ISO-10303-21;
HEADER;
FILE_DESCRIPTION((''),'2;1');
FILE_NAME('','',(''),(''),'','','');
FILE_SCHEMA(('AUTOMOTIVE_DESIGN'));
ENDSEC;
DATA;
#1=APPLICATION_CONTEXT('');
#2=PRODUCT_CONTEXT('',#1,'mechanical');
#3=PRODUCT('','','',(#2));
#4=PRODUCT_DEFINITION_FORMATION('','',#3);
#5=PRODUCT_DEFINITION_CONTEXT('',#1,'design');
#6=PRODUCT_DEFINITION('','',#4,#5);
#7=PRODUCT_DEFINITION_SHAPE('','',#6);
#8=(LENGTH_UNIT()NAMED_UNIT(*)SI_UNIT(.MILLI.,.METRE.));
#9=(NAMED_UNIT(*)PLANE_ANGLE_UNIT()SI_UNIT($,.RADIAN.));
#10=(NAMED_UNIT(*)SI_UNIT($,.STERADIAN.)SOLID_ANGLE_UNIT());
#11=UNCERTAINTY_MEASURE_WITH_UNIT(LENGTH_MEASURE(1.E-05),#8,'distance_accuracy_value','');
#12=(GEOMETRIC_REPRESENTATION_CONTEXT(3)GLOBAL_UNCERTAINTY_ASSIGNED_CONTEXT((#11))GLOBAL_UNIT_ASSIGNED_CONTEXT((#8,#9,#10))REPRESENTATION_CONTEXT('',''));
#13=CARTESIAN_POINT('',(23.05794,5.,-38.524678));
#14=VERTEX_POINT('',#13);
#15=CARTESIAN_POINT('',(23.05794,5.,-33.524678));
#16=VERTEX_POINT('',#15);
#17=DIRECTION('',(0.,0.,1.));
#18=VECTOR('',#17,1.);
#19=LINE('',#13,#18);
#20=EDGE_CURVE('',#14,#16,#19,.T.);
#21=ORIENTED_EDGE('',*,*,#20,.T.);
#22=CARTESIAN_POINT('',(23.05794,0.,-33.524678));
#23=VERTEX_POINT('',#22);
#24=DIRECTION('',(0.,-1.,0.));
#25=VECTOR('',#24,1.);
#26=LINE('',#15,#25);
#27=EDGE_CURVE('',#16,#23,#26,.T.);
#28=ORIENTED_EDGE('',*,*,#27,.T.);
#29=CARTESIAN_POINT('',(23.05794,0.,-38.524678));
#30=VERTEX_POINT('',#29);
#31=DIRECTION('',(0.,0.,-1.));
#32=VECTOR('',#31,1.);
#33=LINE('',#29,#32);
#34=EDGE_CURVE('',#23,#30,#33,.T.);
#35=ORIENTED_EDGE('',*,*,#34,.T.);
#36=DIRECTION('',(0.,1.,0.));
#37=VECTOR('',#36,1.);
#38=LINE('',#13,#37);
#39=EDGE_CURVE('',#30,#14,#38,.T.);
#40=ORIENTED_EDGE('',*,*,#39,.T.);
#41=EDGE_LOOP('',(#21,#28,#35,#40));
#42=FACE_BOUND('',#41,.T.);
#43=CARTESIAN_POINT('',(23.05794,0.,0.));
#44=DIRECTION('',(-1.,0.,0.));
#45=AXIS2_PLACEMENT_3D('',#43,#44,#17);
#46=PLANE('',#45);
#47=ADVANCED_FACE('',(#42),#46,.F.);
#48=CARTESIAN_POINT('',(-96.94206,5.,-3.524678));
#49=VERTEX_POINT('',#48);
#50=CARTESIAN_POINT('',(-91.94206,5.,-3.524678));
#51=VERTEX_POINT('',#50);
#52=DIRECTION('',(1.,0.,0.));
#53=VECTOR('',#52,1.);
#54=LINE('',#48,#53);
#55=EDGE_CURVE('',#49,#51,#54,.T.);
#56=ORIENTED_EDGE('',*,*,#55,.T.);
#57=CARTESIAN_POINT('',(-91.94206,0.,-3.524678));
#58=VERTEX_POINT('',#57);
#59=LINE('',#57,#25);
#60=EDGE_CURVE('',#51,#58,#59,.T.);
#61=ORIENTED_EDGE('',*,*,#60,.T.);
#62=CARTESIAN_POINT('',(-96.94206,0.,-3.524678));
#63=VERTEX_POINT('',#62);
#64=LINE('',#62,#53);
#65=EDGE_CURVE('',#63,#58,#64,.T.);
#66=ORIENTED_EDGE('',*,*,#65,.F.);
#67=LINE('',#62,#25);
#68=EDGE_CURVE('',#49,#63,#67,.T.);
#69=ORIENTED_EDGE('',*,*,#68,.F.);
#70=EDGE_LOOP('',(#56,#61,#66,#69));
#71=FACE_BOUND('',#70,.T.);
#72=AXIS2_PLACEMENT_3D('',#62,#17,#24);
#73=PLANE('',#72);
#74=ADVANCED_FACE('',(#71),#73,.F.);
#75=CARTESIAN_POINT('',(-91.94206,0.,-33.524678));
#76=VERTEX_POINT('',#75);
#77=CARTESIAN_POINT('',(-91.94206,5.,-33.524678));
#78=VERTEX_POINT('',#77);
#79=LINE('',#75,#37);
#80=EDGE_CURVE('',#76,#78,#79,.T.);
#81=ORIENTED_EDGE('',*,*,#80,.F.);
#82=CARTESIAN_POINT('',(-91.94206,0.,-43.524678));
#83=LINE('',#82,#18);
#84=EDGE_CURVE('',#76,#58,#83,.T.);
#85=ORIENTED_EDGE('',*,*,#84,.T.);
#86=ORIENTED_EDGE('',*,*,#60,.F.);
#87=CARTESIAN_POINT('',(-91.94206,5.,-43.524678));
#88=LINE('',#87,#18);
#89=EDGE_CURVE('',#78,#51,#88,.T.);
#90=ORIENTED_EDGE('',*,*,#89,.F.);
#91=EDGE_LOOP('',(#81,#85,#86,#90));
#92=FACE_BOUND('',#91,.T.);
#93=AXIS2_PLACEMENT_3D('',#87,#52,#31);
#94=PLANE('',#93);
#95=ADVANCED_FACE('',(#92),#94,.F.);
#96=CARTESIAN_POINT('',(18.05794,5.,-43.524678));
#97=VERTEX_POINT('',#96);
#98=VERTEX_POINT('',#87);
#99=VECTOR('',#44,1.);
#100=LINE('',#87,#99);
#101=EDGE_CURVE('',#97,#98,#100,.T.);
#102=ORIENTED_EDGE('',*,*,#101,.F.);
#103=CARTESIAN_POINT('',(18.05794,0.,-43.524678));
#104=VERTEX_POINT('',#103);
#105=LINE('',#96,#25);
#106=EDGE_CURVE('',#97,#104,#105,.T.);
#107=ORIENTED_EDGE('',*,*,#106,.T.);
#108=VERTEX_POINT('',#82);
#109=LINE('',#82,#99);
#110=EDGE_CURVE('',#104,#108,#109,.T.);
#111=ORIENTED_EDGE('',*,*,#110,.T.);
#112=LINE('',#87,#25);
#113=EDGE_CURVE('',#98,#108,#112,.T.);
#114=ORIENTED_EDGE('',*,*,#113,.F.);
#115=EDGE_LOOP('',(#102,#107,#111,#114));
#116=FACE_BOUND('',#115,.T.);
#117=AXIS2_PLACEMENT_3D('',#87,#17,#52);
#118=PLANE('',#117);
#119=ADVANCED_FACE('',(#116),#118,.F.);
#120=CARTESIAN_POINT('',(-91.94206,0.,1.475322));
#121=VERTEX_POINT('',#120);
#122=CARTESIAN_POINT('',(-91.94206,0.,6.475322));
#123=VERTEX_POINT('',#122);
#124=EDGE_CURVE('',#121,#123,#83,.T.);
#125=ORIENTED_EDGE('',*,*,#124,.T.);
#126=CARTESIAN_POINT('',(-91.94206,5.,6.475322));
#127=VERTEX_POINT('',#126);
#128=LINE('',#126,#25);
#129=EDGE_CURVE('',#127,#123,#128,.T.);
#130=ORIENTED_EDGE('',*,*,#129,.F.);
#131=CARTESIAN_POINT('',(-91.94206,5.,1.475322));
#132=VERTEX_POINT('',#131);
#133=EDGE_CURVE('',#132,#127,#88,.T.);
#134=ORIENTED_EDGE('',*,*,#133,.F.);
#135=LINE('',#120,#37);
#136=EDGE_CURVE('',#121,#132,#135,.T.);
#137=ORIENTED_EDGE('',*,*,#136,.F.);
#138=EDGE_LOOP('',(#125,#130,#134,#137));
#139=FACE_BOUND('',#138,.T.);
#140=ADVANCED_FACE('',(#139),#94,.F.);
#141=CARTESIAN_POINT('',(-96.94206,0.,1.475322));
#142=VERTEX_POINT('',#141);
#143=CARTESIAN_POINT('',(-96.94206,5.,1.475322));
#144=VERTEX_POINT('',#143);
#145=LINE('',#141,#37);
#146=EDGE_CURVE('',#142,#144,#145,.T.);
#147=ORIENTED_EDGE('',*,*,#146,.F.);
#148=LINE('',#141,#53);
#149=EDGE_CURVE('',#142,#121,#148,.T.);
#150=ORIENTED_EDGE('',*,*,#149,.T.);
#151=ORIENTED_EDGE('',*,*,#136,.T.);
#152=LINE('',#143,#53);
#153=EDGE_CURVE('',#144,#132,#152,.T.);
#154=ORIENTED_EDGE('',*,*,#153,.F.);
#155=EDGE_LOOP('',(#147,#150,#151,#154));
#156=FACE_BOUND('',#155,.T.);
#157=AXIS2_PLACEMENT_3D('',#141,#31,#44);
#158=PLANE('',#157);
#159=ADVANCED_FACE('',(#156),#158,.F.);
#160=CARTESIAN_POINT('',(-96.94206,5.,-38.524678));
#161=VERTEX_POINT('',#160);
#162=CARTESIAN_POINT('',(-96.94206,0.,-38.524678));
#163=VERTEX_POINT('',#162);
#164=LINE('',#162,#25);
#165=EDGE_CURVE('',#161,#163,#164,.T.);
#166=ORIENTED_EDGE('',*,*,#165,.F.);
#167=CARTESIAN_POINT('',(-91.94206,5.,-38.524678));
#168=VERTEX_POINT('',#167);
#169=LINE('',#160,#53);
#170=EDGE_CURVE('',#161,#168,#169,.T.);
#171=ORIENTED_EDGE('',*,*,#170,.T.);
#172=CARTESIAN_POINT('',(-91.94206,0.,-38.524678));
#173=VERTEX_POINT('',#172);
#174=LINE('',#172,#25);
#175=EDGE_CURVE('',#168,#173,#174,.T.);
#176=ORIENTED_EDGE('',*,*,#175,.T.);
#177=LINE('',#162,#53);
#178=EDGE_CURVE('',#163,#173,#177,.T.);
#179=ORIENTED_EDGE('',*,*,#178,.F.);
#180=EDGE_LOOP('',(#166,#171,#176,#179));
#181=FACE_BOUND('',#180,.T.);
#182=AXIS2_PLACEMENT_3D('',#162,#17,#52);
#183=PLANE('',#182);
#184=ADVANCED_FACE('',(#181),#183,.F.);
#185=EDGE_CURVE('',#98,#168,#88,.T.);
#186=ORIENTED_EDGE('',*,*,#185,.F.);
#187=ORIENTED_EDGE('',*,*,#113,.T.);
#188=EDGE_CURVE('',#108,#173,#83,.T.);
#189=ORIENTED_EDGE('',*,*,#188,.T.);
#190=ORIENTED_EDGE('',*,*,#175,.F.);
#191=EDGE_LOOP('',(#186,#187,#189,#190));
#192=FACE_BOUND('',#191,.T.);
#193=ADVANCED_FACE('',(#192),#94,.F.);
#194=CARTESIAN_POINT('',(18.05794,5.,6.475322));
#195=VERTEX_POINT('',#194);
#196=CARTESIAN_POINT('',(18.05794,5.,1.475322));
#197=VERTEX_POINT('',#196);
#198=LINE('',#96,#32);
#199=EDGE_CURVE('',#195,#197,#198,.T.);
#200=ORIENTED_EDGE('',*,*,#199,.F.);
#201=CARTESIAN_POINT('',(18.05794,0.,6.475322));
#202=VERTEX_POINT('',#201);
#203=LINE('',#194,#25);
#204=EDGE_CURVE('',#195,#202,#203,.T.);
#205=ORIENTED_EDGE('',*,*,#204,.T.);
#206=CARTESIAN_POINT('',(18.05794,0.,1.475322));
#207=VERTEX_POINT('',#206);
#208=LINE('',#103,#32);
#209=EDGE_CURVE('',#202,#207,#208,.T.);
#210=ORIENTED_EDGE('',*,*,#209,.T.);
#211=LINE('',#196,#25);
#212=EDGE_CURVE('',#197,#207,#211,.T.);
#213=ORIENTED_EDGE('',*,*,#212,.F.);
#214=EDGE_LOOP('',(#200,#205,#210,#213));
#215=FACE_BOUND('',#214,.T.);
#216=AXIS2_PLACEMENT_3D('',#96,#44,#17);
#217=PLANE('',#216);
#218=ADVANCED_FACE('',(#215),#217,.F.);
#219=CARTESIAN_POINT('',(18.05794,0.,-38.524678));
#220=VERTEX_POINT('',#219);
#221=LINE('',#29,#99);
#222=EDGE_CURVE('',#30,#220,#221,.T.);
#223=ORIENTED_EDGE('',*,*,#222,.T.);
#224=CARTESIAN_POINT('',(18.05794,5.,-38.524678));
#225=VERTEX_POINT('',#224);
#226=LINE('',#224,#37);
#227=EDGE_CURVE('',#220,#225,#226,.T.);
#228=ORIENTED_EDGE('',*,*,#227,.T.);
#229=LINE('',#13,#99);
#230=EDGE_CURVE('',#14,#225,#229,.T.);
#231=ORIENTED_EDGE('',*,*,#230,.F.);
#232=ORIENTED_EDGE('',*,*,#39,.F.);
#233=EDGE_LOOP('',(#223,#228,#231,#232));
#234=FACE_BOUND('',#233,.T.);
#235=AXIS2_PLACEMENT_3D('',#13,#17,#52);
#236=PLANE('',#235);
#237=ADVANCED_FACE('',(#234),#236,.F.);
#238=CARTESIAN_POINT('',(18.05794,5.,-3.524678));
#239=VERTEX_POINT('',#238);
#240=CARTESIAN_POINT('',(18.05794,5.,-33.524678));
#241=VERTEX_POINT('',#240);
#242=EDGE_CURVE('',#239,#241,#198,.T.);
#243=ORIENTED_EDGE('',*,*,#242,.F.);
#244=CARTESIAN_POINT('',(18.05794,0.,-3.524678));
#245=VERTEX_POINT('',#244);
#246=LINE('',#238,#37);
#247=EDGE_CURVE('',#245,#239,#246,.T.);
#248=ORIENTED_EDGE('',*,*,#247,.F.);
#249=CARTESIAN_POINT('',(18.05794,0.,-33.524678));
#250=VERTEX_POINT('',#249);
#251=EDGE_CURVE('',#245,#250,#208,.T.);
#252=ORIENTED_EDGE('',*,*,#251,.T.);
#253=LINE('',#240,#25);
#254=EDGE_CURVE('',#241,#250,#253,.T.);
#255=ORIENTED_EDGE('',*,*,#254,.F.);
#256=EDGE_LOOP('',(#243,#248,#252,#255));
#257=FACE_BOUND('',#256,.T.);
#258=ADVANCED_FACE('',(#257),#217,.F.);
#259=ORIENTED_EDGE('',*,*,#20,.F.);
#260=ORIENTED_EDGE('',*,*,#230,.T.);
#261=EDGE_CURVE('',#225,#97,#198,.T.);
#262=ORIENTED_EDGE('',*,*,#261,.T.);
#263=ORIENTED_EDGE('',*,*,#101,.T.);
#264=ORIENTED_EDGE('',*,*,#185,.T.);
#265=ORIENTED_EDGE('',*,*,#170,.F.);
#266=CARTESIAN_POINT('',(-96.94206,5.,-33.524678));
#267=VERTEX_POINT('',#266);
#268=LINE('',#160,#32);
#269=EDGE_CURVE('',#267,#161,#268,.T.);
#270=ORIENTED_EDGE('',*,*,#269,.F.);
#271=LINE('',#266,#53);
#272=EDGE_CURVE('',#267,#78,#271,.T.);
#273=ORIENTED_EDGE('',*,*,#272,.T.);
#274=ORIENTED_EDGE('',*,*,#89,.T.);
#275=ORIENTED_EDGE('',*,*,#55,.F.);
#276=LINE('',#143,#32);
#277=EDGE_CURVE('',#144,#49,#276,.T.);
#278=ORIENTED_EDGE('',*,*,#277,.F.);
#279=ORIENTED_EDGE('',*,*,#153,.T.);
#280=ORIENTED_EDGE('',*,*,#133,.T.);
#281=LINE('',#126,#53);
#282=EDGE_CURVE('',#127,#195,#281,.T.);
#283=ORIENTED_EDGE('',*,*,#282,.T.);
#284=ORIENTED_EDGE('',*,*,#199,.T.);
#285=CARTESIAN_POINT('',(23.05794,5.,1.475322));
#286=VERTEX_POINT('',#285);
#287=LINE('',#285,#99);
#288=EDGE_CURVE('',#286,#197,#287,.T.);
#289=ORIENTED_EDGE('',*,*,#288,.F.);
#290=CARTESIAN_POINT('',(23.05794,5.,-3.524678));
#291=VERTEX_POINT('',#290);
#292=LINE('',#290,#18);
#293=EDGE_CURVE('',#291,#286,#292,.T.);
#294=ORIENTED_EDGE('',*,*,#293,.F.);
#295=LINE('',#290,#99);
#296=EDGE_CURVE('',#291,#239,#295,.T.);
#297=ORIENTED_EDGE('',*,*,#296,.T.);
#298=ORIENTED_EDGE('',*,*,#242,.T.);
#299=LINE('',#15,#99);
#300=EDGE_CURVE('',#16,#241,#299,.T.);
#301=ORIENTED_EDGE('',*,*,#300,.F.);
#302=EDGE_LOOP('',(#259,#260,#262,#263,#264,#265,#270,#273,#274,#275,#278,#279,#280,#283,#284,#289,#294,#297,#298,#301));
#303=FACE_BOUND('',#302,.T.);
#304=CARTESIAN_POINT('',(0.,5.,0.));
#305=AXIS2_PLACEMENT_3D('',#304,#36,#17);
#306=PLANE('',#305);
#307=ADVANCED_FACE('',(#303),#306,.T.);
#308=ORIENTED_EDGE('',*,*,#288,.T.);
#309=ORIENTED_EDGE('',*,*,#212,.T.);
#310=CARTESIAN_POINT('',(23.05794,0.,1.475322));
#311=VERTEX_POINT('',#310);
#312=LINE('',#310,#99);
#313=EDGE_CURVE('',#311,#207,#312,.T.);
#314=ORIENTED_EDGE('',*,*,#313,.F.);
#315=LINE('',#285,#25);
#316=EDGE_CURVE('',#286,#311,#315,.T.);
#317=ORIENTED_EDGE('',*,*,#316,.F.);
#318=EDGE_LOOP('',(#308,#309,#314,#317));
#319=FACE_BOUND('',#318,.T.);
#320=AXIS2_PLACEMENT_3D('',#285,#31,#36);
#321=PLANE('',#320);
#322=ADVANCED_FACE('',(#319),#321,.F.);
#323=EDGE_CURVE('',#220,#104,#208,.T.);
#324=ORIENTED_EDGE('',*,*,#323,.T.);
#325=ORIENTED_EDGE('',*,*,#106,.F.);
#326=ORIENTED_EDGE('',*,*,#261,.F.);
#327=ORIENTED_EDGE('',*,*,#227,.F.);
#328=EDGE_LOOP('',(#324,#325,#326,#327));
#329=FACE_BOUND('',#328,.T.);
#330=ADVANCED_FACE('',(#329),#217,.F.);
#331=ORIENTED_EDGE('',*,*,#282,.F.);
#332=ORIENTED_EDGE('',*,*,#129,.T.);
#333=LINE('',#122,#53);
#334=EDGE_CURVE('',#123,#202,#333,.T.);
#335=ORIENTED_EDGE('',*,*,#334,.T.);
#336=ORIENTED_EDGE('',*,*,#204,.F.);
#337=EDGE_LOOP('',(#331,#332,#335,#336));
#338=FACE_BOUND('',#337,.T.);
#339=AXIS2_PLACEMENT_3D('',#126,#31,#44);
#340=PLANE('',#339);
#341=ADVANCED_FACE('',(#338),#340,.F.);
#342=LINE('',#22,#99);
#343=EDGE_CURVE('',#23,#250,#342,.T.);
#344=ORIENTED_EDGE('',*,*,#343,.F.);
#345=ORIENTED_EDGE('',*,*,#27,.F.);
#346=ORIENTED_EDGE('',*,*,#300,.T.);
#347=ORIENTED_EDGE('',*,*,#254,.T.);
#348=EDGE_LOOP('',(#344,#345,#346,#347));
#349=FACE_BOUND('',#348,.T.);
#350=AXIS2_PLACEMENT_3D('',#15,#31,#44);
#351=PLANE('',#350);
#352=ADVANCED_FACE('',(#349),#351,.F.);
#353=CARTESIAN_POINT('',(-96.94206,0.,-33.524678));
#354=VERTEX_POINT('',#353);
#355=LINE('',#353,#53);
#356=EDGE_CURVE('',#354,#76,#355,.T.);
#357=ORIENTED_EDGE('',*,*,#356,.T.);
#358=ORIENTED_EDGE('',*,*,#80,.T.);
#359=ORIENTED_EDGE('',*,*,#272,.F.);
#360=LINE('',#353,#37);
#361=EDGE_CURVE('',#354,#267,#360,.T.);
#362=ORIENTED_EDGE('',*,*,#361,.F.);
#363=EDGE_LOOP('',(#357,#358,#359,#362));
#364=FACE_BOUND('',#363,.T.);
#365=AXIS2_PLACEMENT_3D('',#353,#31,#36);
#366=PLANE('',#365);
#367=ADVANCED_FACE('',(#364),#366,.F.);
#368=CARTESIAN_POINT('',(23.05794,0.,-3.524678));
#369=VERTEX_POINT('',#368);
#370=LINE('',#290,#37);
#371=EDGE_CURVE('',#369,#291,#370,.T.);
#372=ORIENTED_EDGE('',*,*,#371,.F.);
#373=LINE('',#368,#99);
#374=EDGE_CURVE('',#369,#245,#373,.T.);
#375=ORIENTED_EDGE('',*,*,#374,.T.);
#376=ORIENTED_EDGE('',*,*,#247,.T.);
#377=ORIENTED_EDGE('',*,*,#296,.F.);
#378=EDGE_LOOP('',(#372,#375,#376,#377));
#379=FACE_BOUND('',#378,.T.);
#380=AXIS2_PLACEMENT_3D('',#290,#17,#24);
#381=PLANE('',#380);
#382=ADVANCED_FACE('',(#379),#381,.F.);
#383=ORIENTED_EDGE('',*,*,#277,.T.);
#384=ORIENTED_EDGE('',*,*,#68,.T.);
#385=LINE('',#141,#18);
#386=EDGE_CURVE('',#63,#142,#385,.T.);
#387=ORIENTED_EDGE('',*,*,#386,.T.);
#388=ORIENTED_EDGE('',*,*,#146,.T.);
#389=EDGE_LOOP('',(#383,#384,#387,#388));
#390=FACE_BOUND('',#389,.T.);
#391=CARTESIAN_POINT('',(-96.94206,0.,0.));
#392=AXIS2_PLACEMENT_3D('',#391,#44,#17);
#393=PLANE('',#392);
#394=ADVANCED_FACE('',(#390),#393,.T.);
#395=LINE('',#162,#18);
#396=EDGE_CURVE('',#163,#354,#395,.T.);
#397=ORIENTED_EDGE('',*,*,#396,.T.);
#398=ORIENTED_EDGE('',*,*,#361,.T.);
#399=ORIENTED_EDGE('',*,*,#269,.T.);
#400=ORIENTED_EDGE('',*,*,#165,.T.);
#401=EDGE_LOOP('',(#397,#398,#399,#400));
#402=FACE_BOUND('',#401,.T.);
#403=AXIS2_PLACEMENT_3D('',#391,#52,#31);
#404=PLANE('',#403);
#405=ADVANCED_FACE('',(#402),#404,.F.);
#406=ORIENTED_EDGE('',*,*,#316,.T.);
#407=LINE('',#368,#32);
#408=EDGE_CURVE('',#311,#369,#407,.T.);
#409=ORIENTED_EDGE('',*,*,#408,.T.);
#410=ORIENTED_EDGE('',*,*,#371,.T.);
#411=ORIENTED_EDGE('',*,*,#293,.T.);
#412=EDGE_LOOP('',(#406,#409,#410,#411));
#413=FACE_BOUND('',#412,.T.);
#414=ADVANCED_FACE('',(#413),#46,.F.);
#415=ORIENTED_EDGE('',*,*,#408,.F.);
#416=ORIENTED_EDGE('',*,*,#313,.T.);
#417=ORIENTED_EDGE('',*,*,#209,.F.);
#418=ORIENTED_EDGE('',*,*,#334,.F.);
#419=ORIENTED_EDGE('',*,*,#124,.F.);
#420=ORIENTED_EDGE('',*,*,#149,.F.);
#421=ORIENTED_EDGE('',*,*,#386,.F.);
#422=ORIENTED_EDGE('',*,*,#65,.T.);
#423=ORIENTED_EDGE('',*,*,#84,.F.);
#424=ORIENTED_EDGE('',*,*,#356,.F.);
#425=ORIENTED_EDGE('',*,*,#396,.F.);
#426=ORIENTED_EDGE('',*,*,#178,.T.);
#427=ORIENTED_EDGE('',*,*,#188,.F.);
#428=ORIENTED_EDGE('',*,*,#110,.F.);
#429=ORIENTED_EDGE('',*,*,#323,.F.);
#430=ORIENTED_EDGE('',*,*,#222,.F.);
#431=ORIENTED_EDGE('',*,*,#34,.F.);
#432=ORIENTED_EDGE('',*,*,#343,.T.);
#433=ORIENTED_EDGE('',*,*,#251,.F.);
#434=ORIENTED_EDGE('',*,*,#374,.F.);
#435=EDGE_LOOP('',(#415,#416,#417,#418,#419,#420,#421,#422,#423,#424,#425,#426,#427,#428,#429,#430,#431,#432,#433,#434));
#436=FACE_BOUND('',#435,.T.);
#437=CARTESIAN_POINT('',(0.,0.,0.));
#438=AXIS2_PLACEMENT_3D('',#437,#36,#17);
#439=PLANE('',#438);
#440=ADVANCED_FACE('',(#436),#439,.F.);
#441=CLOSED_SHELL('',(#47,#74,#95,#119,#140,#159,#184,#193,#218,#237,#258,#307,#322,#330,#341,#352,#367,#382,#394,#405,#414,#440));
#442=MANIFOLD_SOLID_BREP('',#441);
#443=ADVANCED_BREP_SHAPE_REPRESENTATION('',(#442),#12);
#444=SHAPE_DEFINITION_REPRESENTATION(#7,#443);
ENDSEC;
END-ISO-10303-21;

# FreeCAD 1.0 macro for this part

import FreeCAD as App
import Part
import Sketcher
Q = App.Units.Quantity


def add_polygon(sketch, points):
    """Adds a closed chain of lines whose ends are joined by coincident constraints."""
    first, n = sketch.GeometryCount, len(points)
    for a, b in zip(points, points[1:] + points[:1]):
        sketch.addGeometry(Part.LineSegment(App.Vector(*a, 0), App.Vector(*b, 0)), False)
    for i in range(n):
        sketch.addConstraint(Sketcher.Constraint("Coincident", first + i, 2, first + (i + 1) % n, 1))

doc = App.newDocument("Part")
body = doc.addObject("PartDesign::Body", "Body")

# Sketch on XZ plane
sketch1 = doc.addObject("Sketcher::SketchObject", "Sketch")
body.addObject(sketch1)
sketch1.AttachmentSupport = (doc.XZ_Plane, [""])
sketch1.MapMode = "FlatFace"
add_polygon(sketch1, [(-92, -44), (-92, 6), (18, 6), (18, -44)])  # lines 0-3
sketch1.addConstraint(Sketcher.Constraint("Vertical", 0))
sketch1.addConstraint(Sketcher.Constraint("Horizontal", 1))
sketch1.addConstraint(Sketcher.Constraint("Vertical", 2))
sketch1.addConstraint(Sketcher.Constraint("Horizontal", 3))
sketch1.addConstraint(Sketcher.Constraint("DistanceX", 1, 1, 1, 2, Q("110 mm")))
sketch1.addConstraint(Sketcher.Constraint("DistanceY", 0, 1, 0, 2, Q("50 mm")))
sketch1.addConstraint(Sketcher.Constraint("DistanceX", 0, 2, -1, 1, Q("91.94206 mm")))
sketch1.addConstraint(Sketcher.Constraint("DistanceY", -1, 1, 0, 2, Q("6.475322 mm")))
pad1 = doc.addObject("PartDesign::Pad", "Pad")
body.addObject(pad1)
pad1.Profile = sketch1
pad1.Length = 5
pad1.Reversed = True

# Sketch on YZ plane
sketch2 = doc.addObject("Sketcher::SketchObject", "Sketch001")
body.addObject(sketch2)
sketch2.AttachmentSupport = (doc.YZ_Plane, [""])
sketch2.MapMode = "FlatFace"
sketch2.AttachmentOffset = App.Placement(App.Vector(0, 0, -91.94206), App.Rotation())
add_polygon(sketch2, [(5, -39), (0, -39), (0, -34), (5, -34)])  # lines 0-3
add_polygon(sketch2, [(5, -4), (0, -4), (0, 1), (5, 1)])  # lines 4-7
sketch2.addConstraint(Sketcher.Constraint("Horizontal", 0))
sketch2.addConstraint(Sketcher.Constraint("Vertical", 1))
sketch2.addConstraint(Sketcher.Constraint("Horizontal", 2))
sketch2.addConstraint(Sketcher.Constraint("Vertical", 3))
sketch2.addConstraint(Sketcher.Constraint("Horizontal", 4))
sketch2.addConstraint(Sketcher.Constraint("Vertical", 5))
sketch2.addConstraint(Sketcher.Constraint("Horizontal", 6))
sketch2.addConstraint(Sketcher.Constraint("Vertical", 7))
sketch2.addConstraint(Sketcher.Constraint("PointOnObject", 0, 2, -2))
sketch2.addConstraint(Sketcher.Constraint("PointOnObject", 4, 2, -2))
sketch2.addConstraint(Sketcher.Constraint("Vertical", 3, 2, 6, 2))
sketch2.addConstraint(Sketcher.Constraint("Equal", 6, 1))
sketch2.addConstraint(Sketcher.Constraint("Equal", 3, 5))
sketch2.addConstraint(Sketcher.Constraint("DistanceX", 0, 2, 0, 1, Q("5 mm")))
sketch2.addConstraint(Sketcher.Constraint("DistanceY", 1, 2, 4, 2, Q("30 mm")))
sketch2.addConstraint(Sketcher.Constraint("DistanceY", 0, 2, -1, 1, Q("38.524678 mm")))
pad2 = doc.addObject("PartDesign::Pad", "Pad001")
body.addObject(pad2)
pad2.Profile = sketch2
pad2.Length = 5
pad2.Reversed = True

# Sketch on YZ plane
sketch3 = doc.addObject("Sketcher::SketchObject", "Sketch002")
body.addObject(sketch3)
sketch3.AttachmentSupport = (doc.YZ_Plane, [""])
sketch3.MapMode = "FlatFace"
sketch3.AttachmentOffset = App.Placement(App.Vector(0, 0, 18.05794), App.Rotation())
add_polygon(sketch3, [(5, -34), (0, -34), (0, -39), (5, -39)])  # lines 0-3
add_polygon(sketch3, [(5, 1), (0, 1), (0, -4), (5, -4)])  # lines 4-7
sketch3.addConstraint(Sketcher.Constraint("Horizontal", 0))
sketch3.addConstraint(Sketcher.Constraint("Vertical", 1))
sketch3.addConstraint(Sketcher.Constraint("Horizontal", 2))
sketch3.addConstraint(Sketcher.Constraint("Vertical", 3))
sketch3.addConstraint(Sketcher.Constraint("Horizontal", 4))
sketch3.addConstraint(Sketcher.Constraint("Vertical", 5))
sketch3.addConstraint(Sketcher.Constraint("Horizontal", 6))
sketch3.addConstraint(Sketcher.Constraint("Vertical", 7))
sketch3.addConstraint(Sketcher.Constraint("PointOnObject", 0, 2, -2))
sketch3.addConstraint(Sketcher.Constraint("PointOnObject", 4, 2, -2))
sketch3.addConstraint(Sketcher.Constraint("Vertical", 3, 2, 6, 2))
sketch3.addConstraint(Sketcher.Constraint("Equal", 6, 1))
sketch3.addConstraint(Sketcher.Constraint("Equal", 3, 5))
sketch3.addConstraint(Sketcher.Constraint("DistanceX", 0, 2, 0, 1, Q("5 mm")))
sketch3.addConstraint(Sketcher.Constraint("DistanceY", 0, 2, 4, 2, Q("35 mm")))
sketch3.addConstraint(Sketcher.Constraint("DistanceY", 0, 2, -1, 1, Q("33.524678 mm")))
pad3 = doc.addObject("PartDesign::Pad", "Pad002")
body.addObject(pad3)
pad3.Profile = sketch3
pad3.Length = 5

doc.recompute()
